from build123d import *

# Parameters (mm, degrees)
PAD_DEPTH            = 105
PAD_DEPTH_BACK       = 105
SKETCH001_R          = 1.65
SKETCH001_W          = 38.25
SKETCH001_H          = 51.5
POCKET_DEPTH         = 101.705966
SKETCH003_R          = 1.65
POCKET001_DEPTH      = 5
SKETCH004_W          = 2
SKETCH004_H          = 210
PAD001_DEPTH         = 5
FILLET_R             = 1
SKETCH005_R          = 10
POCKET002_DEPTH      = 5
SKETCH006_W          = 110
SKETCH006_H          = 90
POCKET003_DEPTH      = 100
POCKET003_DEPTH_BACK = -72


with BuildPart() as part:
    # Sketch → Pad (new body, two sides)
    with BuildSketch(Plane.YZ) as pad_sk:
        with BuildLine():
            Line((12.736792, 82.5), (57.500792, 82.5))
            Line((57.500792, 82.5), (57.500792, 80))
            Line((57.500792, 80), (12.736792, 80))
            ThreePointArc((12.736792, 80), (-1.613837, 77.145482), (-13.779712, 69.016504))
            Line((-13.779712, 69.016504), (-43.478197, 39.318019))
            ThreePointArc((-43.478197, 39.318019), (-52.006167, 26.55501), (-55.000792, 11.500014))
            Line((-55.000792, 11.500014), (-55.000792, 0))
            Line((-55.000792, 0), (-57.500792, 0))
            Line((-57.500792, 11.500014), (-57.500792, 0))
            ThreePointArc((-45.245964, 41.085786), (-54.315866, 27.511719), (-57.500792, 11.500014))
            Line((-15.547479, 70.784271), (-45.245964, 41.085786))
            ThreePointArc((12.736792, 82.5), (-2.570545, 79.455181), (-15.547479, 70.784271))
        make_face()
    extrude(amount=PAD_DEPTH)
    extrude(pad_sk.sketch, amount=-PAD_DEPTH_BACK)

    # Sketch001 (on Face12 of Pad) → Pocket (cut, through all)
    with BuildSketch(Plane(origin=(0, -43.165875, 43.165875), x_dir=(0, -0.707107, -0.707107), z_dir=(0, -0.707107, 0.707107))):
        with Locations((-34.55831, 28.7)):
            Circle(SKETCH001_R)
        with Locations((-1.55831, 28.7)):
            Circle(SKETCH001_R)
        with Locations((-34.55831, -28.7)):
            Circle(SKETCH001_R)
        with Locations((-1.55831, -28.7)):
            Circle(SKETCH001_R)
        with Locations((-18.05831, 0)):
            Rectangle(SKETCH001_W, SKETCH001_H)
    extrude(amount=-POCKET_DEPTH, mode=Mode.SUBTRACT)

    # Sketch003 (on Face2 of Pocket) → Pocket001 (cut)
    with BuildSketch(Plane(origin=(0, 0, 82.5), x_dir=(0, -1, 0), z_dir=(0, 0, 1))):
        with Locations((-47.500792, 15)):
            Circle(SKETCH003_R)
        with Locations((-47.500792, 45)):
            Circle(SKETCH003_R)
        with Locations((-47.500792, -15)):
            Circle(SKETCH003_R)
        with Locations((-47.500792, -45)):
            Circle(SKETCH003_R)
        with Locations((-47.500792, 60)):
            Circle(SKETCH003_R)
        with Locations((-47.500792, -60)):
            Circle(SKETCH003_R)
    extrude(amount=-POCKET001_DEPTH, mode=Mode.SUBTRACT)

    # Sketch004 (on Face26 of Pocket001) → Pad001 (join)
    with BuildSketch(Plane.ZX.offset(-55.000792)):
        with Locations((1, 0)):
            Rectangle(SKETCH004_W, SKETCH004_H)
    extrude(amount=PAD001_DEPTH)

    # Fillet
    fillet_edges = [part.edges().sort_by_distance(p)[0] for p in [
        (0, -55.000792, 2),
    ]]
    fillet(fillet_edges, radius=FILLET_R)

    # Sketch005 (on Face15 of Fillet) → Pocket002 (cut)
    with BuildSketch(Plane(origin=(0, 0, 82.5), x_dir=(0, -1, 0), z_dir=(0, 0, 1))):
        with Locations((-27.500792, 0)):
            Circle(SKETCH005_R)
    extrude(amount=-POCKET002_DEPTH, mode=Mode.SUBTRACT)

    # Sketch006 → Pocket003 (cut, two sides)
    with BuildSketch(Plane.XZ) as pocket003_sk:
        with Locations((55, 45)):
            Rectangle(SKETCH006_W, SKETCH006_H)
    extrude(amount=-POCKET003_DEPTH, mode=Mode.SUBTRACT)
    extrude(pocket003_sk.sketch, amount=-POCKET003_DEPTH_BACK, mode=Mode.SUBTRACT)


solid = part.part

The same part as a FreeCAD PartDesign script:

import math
import FreeCAD as App
import Part
import Sketcher
Q = App.Units.Quantity


def edges_at(feature, points):
    """Names of the edges that pass closest to the given points."""
    edges = feature.Shape.Edges
    near = lambda p: min(range(len(edges)), key=lambda i: edges[i].distToShape(Part.Vertex(*p))[0])
    return sorted({f"Edge{near(p) + 1}" for p in points})

doc = App.newDocument("Part")
body = doc.addObject("PartDesign::Body", "Body")

sketch1 = body.newObject("Sketcher::SketchObject", "Sketch")
sketch1.AttachmentSupport = (doc.getObject("YZ_Plane"), [""])
sketch1.MapMode = "FlatFace"
sketch1.addGeometry([
    Part.LineSegment(App.Vector(57.5, 82.5, 0), App.Vector(12.7, 82.5, 0)),
    Part.ArcOfCircle(Part.Circle(App.Vector(12.7, 42.5, 0), App.Vector(0, 0, 1), 40), math.radians(90), math.radians(135)),
    Part.LineSegment(App.Vector(-15.5, 70.8, 0), App.Vector(-45.2, 41.1, 0)),
    Part.ArcOfCircle(Part.Circle(App.Vector(-15.7, 11.5, 0), App.Vector(0, 0, 1), 41.8), math.radians(135), math.radians(180)),
    Part.LineSegment(App.Vector(-57.5, 11.5, 0), App.Vector(-57.5, 0, 0)),
    Part.LineSegment(App.Vector(-57.5, 0, 0), App.Vector(-55, 0, 0)),
    Part.LineSegment(App.Vector(-55, 0, 0), App.Vector(-55, 11.5, 0)),
    Part.ArcOfCircle(Part.Circle(App.Vector(-15.7, 11.5, 0), App.Vector(0, 0, 1), 39.3), math.radians(135), math.radians(180)),
    Part.LineSegment(App.Vector(-43.5, 39.3, 0), App.Vector(-13.8, 69, 0)),
    Part.ArcOfCircle(Part.Circle(App.Vector(12.7, 42.5, 0), App.Vector(0, 0, 1), 37.5), math.radians(90), math.radians(135)),
    Part.LineSegment(App.Vector(12.7, 80, 0), App.Vector(57.5, 80, 0)),
    Part.LineSegment(App.Vector(57.5, 80, 0), App.Vector(57.5, 82.5, 0)),
], False)
sketch1.addConstraint([
    Sketcher.Constraint("Tangent", 0, 2, 1, 1),
    Sketcher.Constraint("Tangent", 1, 2, 2, 1),
    Sketcher.Constraint("Tangent", 2, 2, 3, 1),
    Sketcher.Constraint("Tangent", 3, 2, 4, 1),
    Sketcher.Constraint("Coincident", 4, 2, 5, 1),
    Sketcher.Constraint("Coincident", 5, 2, 6, 1),
    Sketcher.Constraint("Tangent", 6, 2, 7, 2),
    Sketcher.Constraint("Tangent", 7, 1, 8, 1),
    Sketcher.Constraint("Tangent", 8, 2, 9, 2),
    Sketcher.Constraint("Tangent", 9, 1, 10, 1),
    Sketcher.Constraint("Coincident", 10, 2, 11, 1),
    Sketcher.Constraint("Coincident", 11, 2, 0, 1),
    Sketcher.Constraint("Horizontal", 0),
    Sketcher.Constraint("Vertical", 4),
    Sketcher.Constraint("Horizontal", 5),
    Sketcher.Constraint("Vertical", 6),
    Sketcher.Constraint("Horizontal", 10),
    Sketcher.Constraint("Vertical", 11),
    Sketcher.Constraint("Coincident", 7, 3, 3, 3),
    Sketcher.Constraint("Coincident", 9, 3, 1, 3),
    Sketcher.Constraint("PointOnObject", 4, 2, -1),
    Sketcher.Constraint("Parallel", 2, 8),
    Sketcher.Constraint("Radius", 9, Q("37.500001 mm")),
    Sketcher.Constraint("Angle", 2, Q("-135 deg")),
    Sketcher.Constraint("Distance", 2, Q("42 mm")),
    Sketcher.Constraint("DistanceX", 5, 1, 5, 2, Q("2.5 mm")),
    Sketcher.Constraint("DistanceY", -1, 1, 9, 1, Q("80 mm")),
    Sketcher.Constraint("Radius", 7, Q("39.3406 mm")),
    Sketcher.Constraint("DistanceX", 0, 2, 0, 1, Q("44.764 mm")),
    Sketcher.Constraint("DistanceX", 7, 3, -1, 1, Q("15.660192 mm")),
])
pad1 = body.newObject("PartDesign::Pad", "Pad")
pad1.Profile = sketch1
pad1.Type = "TwoLengths"
pad1.Length = 105
pad1.Length2 = 105

sketch2 = body.newObject("Sketcher::SketchObject", "Sketch001")
sketch2.Placement = App.Placement(App.Vector(0, -43.165875, 43.165875), App.Rotation(App.Vector(0, -0.707106781, -0.707106781), App.Vector(0.999999999, 0, 0), App.Vector(0, -0.707106781, 0.707106781), "ZXY"))
sketch2.addGeometry([
    Part.Circle(App.Vector(-34.6, 28.7, 0), App.Vector(0, 0, 1), 1.6),
    Part.Circle(App.Vector(-1.6, 28.7, 0), App.Vector(0, 0, 1), 1.6),
    Part.Circle(App.Vector(-34.6, -28.7, 0), App.Vector(0, 0, 1), 1.6),
    Part.Circle(App.Vector(-1.6, -28.7, 0), App.Vector(0, 0, 1), 1.6),
    Part.LineSegment(App.Vector(-37.2, 25.7, 0), App.Vector(-37.2, -25.7, 0)),
    Part.LineSegment(App.Vector(-37.2, -25.7, 0), App.Vector(1.1, -25.7, 0)),
    Part.LineSegment(App.Vector(1.1, -25.7, 0), App.Vector(1.1, 25.7, 0)),
    Part.LineSegment(App.Vector(1.1, 25.7, 0), App.Vector(-37.2, 25.7, 0)),
], False)
sketch2.addConstraint([
    Sketcher.Constraint("Coincident", 4, 2, 5, 1),
    Sketcher.Constraint("Coincident", 5, 2, 6, 1),
    Sketcher.Constraint("Coincident", 6, 2, 7, 1),
    Sketcher.Constraint("Coincident", 7, 2, 4, 1),
    Sketcher.Constraint("Vertical", 4),
    Sketcher.Constraint("Horizontal", 5),
    Sketcher.Constraint("Vertical", 6),
    Sketcher.Constraint("Horizontal", 7),
    Sketcher.Constraint("Equal", 0, 1),
    Sketcher.Constraint("Equal", 1, 2),
    Sketcher.Constraint("Equal", 2, 3),
    Sketcher.Constraint("Symmetric", 0, 3, 2, 3, -1),
    Sketcher.Constraint("Symmetric", 1, 3, 3, 3, -1),
    Sketcher.Constraint("Horizontal", 0, 3, 1, 3),
    Sketcher.Constraint("Diameter", 0, Q("3.3 mm")),
    Sketcher.Constraint("DistanceY", 4, 2, 4, 1, Q("51.5 mm")),
    Sketcher.Constraint("DistanceX", 0, 3, 1, 3, Q("33 mm")),
    Sketcher.Constraint("DistanceX", 5, 1, 5, 2, Q("38.25 mm")),
    Sketcher.Constraint("DistanceY", -1, 1, 0, 3, Q("28.7 mm")),
    Sketcher.Constraint("DistanceY", 4, 2, -1, 1, Q("25.75 mm")),
    Sketcher.Constraint("DistanceX", 4, 2, 2, 3, Q("2.625 mm")),
    Sketcher.Constraint("DistanceX", 0, 3, -1, 1, Q("34.55831 mm")),
])
pocket1 = body.newObject("PartDesign::Pocket", "Pocket")
pocket1.Profile = sketch2
pocket1.Type = "ThroughAll"

sketch3 = body.newObject("Sketcher::SketchObject", "Sketch002")
sketch3.AttachmentSupport = (doc.getObject("XY_Plane"), [""])
sketch3.MapMode = "FlatFace"
sketch3.AttachmentOffset = App.Placement(App.Vector(0, 0, 82.5), App.Rotation())
sketch3.addGeometry([
    Part.Circle(App.Vector(15, 47.5, 0), App.Vector(0, 0, 1), 1.6),
    Part.Circle(App.Vector(45, 47.5, 0), App.Vector(0, 0, 1), 1.6),
    Part.Circle(App.Vector(-15, 47.5, 0), App.Vector(0, 0, 1), 1.6),
    Part.Circle(App.Vector(-45, 47.5, 0), App.Vector(0, 0, 1), 1.6),
    Part.Circle(App.Vector(60, 47.5, 0), App.Vector(0, 0, 1), 1.6),
    Part.Circle(App.Vector(-60, 47.5, 0), App.Vector(0, 0, 1), 1.6),
], False)
sketch3.addConstraint([
    Sketcher.Constraint("Equal", 0, 1),
    Sketcher.Constraint("Equal", 1, 2),
    Sketcher.Constraint("Equal", 2, 3),
    Sketcher.Constraint("Equal", 3, 4),
    Sketcher.Constraint("Equal", 4, 5),
    Sketcher.Constraint("Symmetric", 0, 3, 2, 3, -2),
    Sketcher.Constraint("Symmetric", 1, 3, 3, 3, -2),
    Sketcher.Constraint("Symmetric", 4, 3, 5, 3, -2),
    Sketcher.Constraint("Horizontal", 0, 3, 1, 3),
    Sketcher.Constraint("Horizontal", 3, 3, 4, 3),
    Sketcher.Constraint("Diameter", 0, Q("3.3 mm")),
    Sketcher.Constraint("DistanceX", -1, 1, 0, 3, Q("15 mm")),
    Sketcher.Constraint("DistanceX", -1, 1, 1, 3, Q("45 mm")),
    Sketcher.Constraint("DistanceX", -1, 1, 4, 3, Q("60 mm")),
    Sketcher.Constraint("DistanceY", -1, 1, 0, 3, Q("47.500792 mm")),
])
pocket2 = body.newObject("PartDesign::Pocket", "Pocket001")
pocket2.Profile = sketch3
pocket2.Length = 5

sketch4 = body.newObject("Sketcher::SketchObject", "Sketch003")
sketch4.AttachmentSupport = (doc.getObject("XZ_Plane"), [""])
sketch4.MapMode = "FlatFace"
sketch4.AttachmentOffset = App.Placement(App.Vector(0, 0, 55.000792), App.Rotation())
sketch4.addGeometry([
    Part.LineSegment(App.Vector(105, 0, 0), App.Vector(-105, 0, 0)),
    Part.LineSegment(App.Vector(-105, 0, 0), App.Vector(-105, 2, 0)),
    Part.LineSegment(App.Vector(-105, 2, 0), App.Vector(105, 2, 0)),
    Part.LineSegment(App.Vector(105, 2, 0), App.Vector(105, 0, 0)),
], False)
sketch4.addConstraint([
    Sketcher.Constraint("Coincident", 0, 2, 1, 1),
    Sketcher.Constraint("Coincident", 1, 2, 2, 1),
    Sketcher.Constraint("Coincident", 2, 2, 3, 1),
    Sketcher.Constraint("Coincident", 3, 2, 0, 1),
    Sketcher.Constraint("Horizontal", 0),
    Sketcher.Constraint("Vertical", 1),
    Sketcher.Constraint("Horizontal", 2),
    Sketcher.Constraint("Vertical", 3),
    Sketcher.Constraint("Symmetric", 0, 2, 3, 2, -1, 1),
    Sketcher.Constraint("DistanceX", 0, 2, 0, 1, Q("210 mm")),
    Sketcher.Constraint("DistanceY", 1, 1, 1, 2, Q("2 mm")),
])
pad2 = body.newObject("PartDesign::Pad", "Pad001")
pad2.Profile = sketch4
pad2.Length = 5
pad2.Reversed = True
doc.recompute()

fillet = body.newObject("PartDesign::Fillet", "Fillet")
fillet.Base = (pad2, edges_at(pad2, [(0, -55.001, 2)]))
fillet.Radius = 1

sketch5 = body.newObject("Sketcher::SketchObject", "Sketch004")
sketch5.AttachmentSupport = (doc.getObject("XY_Plane"), [""])
sketch5.MapMode = "FlatFace"
sketch5.AttachmentOffset = App.Placement(App.Vector(0, 0, 82.5), App.Rotation())
sketch5.addGeometry(Part.Circle(App.Vector(0, 28, 0), App.Vector(0, 0, 1), 10), False)
sketch5.addConstraint([
    Sketcher.Constraint("PointOnObject", 0, 3, -2),
    Sketcher.Constraint("Diameter", 0, Q("20 mm")),
    Sketcher.Constraint("DistanceY", -1, 1, 0, 3, Q("27.500792 mm")),
])
pocket3 = body.newObject("PartDesign::Pocket", "Pocket002")
pocket3.Profile = sketch5
pocket3.Length = 5

sketch6 = body.newObject("Sketcher::SketchObject", "Sketch005")
sketch6.AttachmentSupport = (doc.getObject("XZ_Plane"), [""])
sketch6.MapMode = "FlatFace"
sketch6.addGeometry([
    Part.LineSegment(App.Vector(0, 90, 0), App.Vector(0, 0, 0)),
    Part.LineSegment(App.Vector(0, 0, 0), App.Vector(110, 0, 0)),
    Part.LineSegment(App.Vector(110, 0, 0), App.Vector(110, 90, 0)),
    Part.LineSegment(App.Vector(110, 90, 0), App.Vector(0, 90, 0)),
], False)
sketch6.addConstraint([
    Sketcher.Constraint("Coincident", 0, 2, 1, 1),
    Sketcher.Constraint("Coincident", 1, 2, 2, 1),
    Sketcher.Constraint("Coincident", 2, 2, 3, 1),
    Sketcher.Constraint("Coincident", 3, 2, 0, 1),
    Sketcher.Constraint("Vertical", 0),
    Sketcher.Constraint("Horizontal", 1),
    Sketcher.Constraint("Vertical", 2),
    Sketcher.Constraint("Horizontal", 3),
    Sketcher.Constraint("Coincident", 0, 2, -1, 1),
    Sketcher.Constraint("DistanceX", 1, 1, 1, 2, Q("110 mm")),
    Sketcher.Constraint("DistanceY", 0, 2, 0, 1, Q("90 mm")),
])
pocket4 = body.newObject("PartDesign::Pocket", "Pocket003")
pocket4.Profile = sketch6
pocket4.Type = "ThroughAll"
pocket4.Midplane = True

doc.recompute()
